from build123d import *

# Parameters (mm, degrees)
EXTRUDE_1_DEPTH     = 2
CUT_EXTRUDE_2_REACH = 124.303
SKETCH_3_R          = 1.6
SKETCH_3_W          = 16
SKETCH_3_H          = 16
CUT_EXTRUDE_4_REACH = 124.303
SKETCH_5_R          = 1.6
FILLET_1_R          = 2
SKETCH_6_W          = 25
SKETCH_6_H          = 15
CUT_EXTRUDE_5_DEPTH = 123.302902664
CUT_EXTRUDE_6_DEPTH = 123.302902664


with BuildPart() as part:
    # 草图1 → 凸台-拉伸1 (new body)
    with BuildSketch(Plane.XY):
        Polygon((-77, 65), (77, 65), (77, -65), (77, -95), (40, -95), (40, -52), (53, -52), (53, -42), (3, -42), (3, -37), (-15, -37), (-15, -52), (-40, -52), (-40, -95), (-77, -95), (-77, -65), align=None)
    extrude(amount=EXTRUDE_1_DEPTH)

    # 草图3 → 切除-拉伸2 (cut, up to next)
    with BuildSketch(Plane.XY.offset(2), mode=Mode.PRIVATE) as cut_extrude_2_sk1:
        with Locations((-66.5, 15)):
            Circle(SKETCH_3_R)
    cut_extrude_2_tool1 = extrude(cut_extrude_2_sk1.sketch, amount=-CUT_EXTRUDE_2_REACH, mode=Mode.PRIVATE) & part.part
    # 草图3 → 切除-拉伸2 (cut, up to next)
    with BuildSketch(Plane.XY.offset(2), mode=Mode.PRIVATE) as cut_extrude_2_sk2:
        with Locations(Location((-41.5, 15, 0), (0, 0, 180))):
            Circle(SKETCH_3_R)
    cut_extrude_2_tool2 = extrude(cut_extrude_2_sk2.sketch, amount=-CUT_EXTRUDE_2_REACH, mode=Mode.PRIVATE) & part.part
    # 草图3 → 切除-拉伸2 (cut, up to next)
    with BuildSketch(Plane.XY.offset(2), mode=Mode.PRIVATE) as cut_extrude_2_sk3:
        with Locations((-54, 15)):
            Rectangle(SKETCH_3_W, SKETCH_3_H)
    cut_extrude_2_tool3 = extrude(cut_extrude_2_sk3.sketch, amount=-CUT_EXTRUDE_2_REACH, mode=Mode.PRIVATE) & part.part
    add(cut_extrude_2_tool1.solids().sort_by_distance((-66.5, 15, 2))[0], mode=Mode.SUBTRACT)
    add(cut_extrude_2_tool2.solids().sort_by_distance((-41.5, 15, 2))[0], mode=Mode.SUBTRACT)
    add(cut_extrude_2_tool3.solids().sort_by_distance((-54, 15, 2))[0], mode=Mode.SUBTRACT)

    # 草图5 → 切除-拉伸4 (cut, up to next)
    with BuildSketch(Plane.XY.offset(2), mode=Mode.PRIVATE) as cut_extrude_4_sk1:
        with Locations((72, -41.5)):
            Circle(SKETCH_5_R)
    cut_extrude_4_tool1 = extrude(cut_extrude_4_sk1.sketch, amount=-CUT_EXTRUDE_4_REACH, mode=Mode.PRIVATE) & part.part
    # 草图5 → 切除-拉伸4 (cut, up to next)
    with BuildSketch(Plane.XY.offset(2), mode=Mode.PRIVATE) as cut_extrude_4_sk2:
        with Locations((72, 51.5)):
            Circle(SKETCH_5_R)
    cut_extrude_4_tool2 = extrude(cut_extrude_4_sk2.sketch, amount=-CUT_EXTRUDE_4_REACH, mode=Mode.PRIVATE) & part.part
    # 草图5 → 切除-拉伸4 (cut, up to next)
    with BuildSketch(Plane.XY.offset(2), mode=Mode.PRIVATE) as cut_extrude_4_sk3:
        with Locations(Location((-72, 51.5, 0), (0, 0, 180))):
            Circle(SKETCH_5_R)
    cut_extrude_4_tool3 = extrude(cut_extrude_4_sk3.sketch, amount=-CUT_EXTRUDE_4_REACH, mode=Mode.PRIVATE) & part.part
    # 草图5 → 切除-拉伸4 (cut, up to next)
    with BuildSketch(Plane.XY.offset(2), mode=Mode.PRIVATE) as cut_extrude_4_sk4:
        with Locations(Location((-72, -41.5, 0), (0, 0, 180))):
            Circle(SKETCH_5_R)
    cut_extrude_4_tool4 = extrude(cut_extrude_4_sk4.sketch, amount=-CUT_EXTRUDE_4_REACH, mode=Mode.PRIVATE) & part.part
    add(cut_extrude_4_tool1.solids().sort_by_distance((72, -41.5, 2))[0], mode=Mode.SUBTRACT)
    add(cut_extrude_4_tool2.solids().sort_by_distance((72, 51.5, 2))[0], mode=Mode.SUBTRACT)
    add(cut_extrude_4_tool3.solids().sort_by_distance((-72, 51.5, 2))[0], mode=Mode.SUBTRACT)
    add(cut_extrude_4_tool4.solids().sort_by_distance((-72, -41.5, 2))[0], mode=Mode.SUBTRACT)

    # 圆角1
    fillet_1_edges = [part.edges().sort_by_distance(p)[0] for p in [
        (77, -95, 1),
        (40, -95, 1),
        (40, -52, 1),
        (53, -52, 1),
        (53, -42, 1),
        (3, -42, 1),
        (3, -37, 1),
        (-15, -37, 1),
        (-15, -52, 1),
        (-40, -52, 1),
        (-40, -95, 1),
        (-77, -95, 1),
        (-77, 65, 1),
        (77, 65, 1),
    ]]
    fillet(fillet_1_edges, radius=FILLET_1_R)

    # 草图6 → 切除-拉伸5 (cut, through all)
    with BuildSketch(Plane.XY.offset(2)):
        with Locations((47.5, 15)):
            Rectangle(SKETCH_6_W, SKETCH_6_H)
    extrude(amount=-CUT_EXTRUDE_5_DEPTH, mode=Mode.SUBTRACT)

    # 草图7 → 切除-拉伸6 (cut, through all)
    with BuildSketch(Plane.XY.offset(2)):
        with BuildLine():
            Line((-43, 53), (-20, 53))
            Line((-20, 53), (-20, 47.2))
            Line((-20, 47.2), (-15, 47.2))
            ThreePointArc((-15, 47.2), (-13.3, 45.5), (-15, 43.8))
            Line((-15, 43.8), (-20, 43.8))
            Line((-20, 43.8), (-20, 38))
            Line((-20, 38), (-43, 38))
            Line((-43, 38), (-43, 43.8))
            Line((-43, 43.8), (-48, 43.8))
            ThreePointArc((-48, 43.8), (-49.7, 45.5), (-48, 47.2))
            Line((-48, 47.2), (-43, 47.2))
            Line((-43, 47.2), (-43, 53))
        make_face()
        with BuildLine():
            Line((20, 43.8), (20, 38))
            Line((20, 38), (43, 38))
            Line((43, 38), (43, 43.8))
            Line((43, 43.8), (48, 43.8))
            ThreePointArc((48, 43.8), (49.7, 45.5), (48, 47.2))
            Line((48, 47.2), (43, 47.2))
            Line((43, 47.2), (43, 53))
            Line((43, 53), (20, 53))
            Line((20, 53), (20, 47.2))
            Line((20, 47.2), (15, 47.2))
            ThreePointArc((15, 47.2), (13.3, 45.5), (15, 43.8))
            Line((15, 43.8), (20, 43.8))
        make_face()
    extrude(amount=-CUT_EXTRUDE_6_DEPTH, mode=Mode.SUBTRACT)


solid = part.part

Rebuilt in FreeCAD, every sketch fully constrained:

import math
import FreeCAD as App
import Part
import Sketcher


def edges_at(feature, points):
    """Names of the edges that pass closest to the given points."""
    edges = feature.Shape.Edges
    near = lambda p: min(range(len(edges)), key=lambda i: edges[i].distToShape(Part.Vertex(*p))[0])
    return sorted({f"Edge{near(p) + 1}" for p in points})


def add_polygon(sketch, points):
    """Adds a closed chain of lines whose ends are joined by coincident constraints."""
    first, n = sketch.GeometryCount, len(points)
    for a, b in zip(points, points[1:] + points[:1]):
        sketch.addGeometry(Part.LineSegment(App.Vector(*a, 0), App.Vector(*b, 0)), False)
    for i in range(n):
        sketch.addConstraint(Sketcher.Constraint("Coincident", first + i, 2, first + (i + 1) % n, 1))

doc = App.newDocument("Part")
body = doc.addObject("PartDesign::Body", "Body")

sketch1 = body.newObject("Sketcher::SketchObject", "Sketch")
sketch1.AttachmentSupport = (doc.getObject("XY_Plane"), [""])
sketch1.MapMode = "FlatFace"
add_polygon(sketch1, [(77, 65), (-77, 65), (-77, -95), (-40, -95), (-40, -52), (-15, -52), (-15, -37), (3, -37), (3, -42), (53, -42), (53, -52), (40, -52), (40, -95), (77, -95)])
sketch1.addConstraint(Sketcher.Constraint("Horizontal", 0))
sketch1.addConstraint(Sketcher.Constraint("Vertical", 1))
sketch1.addConstraint(Sketcher.Constraint("Horizontal", 2))
sketch1.addConstraint(Sketcher.Constraint("Vertical", 3))
sketch1.addConstraint(Sketcher.Constraint("Horizontal", 4))
sketch1.addConstraint(Sketcher.Constraint("Vertical", 5))
sketch1.addConstraint(Sketcher.Constraint("Horizontal", 6))
sketch1.addConstraint(Sketcher.Constraint("Vertical", 7))
sketch1.addConstraint(Sketcher.Constraint("Horizontal", 8))
sketch1.addConstraint(Sketcher.Constraint("Vertical", 9))
sketch1.addConstraint(Sketcher.Constraint("Horizontal", 10))
sketch1.addConstraint(Sketcher.Constraint("Vertical", 11))
sketch1.addConstraint(Sketcher.Constraint("Horizontal", 12))
sketch1.addConstraint(Sketcher.Constraint("Vertical", 13))
sketch1.addConstraint(Sketcher.Constraint("Symmetric", 3, 2, 10, 2, -2))
sketch1.addConstraint(Sketcher.Constraint("Symmetric", 1, 2, 12, 2, -2))
sketch1.addConstraint(Sketcher.Constraint("DistanceX", 0, 2, 0, 1, 154.0))
sketch1.addConstraint(Sketcher.Constraint("DistanceX", 2, 1, 2, 2, 37.0))
sketch1.addConstraint(Sketcher.Constraint("DistanceX", 4, 1, 4, 2, 25.0))
sketch1.addConstraint(Sketcher.Constraint("DistanceX", 6, 1, 6, 2, 18.0))
sketch1.addConstraint(Sketcher.Constraint("DistanceX", 8, 1, 8, 2, 50.0))
sketch1.addConstraint(Sketcher.Constraint("DistanceY", 1, 2, 1, 1, 160.0))
sketch1.addConstraint(Sketcher.Constraint("DistanceY", 3, 1, 3, 2, 43.0))
sketch1.addConstraint(Sketcher.Constraint("DistanceY", 5, 1, 5, 2, 15.0))
sketch1.addConstraint(Sketcher.Constraint("DistanceY", 7, 2, 7, 1, 5.0))
sketch1.addConstraint(Sketcher.Constraint("DistanceY", -1, 1, 0, 2, 65.0))
pad1 = body.newObject("PartDesign::Pad", "Pad")
pad1.Profile = sketch1
pad1.Length = 2

sketch2 = body.newObject("Sketcher::SketchObject", "Sketch001")
sketch2.AttachmentSupport = (doc.getObject("XY_Plane"), [""])
sketch2.MapMode = "FlatFace"
sketch2.AttachmentOffset = App.Placement(App.Vector(0, 0, 2), App.Rotation())
sketch2.addGeometry(Part.Circle(App.Vector(-66.5, 15, 0), App.Vector(0, 0, 1), 1.6), False)
sketch2.addConstraint(Sketcher.Constraint("Diameter", 0, 3.2))
sketch2.addConstraint(Sketcher.Constraint("DistanceY", -1, 1, 0, 3, 15.0))
sketch2.addConstraint(Sketcher.Constraint("DistanceX", 0, 3, -1, 1, 66.5))
pocket1 = body.newObject("PartDesign::Pocket", "Pocket")
pocket1.Profile = sketch2
pocket1.Type = "UpToFirst"

sketch3 = body.newObject("Sketcher::SketchObject", "Sketch002")
sketch3.AttachmentSupport = (doc.getObject("XY_Plane"), [""])
sketch3.MapMode = "FlatFace"
sketch3.AttachmentOffset = App.Placement(App.Vector(0, 0, 2), App.Rotation())
sketch3.addGeometry(Part.Circle(App.Vector(-41.5, 15, 0), App.Vector(0, 0, 1), 1.6), False)
sketch3.addConstraint(Sketcher.Constraint("Diameter", 0, 3.2))
sketch3.addConstraint(Sketcher.Constraint("DistanceY", -1, 1, 0, 3, 15.0))
sketch3.addConstraint(Sketcher.Constraint("DistanceX", 0, 3, -1, 1, 41.5))
pocket2 = body.newObject("PartDesign::Pocket", "Pocket001")
pocket2.Profile = sketch3
pocket2.Type = "UpToFirst"

sketch4 = body.newObject("Sketcher::SketchObject", "Sketch003")
sketch4.AttachmentSupport = (doc.getObject("XY_Plane"), [""])
sketch4.MapMode = "FlatFace"
sketch4.AttachmentOffset = App.Placement(App.Vector(0, 0, 2), App.Rotation())
add_polygon(sketch4, [(-62, 23), (-62, 7), (-46, 7), (-46, 23)])
sketch4.addConstraint(Sketcher.Constraint("Vertical", 0))
sketch4.addConstraint(Sketcher.Constraint("Horizontal", 1))
sketch4.addConstraint(Sketcher.Constraint("Vertical", 2))
sketch4.addConstraint(Sketcher.Constraint("Horizontal", 3))
sketch4.addConstraint(Sketcher.Constraint("Equal", 3, 0))
sketch4.addConstraint(Sketcher.Constraint("DistanceX", 1, 1, 1, 2, 16.0))
sketch4.addConstraint(Sketcher.Constraint("DistanceX", 0, 2, -1, 1, 62.0))
sketch4.addConstraint(Sketcher.Constraint("DistanceY", -1, 1, 0, 2, 7.0))
pocket3 = body.newObject("PartDesign::Pocket", "Pocket002")
pocket3.Profile = sketch4
pocket3.Type = "UpToFirst"

sketch5 = body.newObject("Sketcher::SketchObject", "Sketch004")
sketch5.AttachmentSupport = (doc.getObject("XY_Plane"), [""])
sketch5.MapMode = "FlatFace"
sketch5.AttachmentOffset = App.Placement(App.Vector(0, 0, 2), App.Rotation())
sketch5.addGeometry(Part.Circle(App.Vector(72, -41.5, 0), App.Vector(0, 0, 1), 1.6), False)
sketch5.addConstraint(Sketcher.Constraint("Diameter", 0, 3.2))
sketch5.addConstraint(Sketcher.Constraint("DistanceX", -1, 1, 0, 3, 72.0))
sketch5.addConstraint(Sketcher.Constraint("DistanceY", 0, 3, -1, 1, 41.5))
pocket4 = body.newObject("PartDesign::Pocket", "Pocket003")
pocket4.Profile = sketch5
pocket4.Type = "UpToFirst"

sketch6 = body.newObject("Sketcher::SketchObject", "Sketch005")
sketch6.AttachmentSupport = (doc.getObject("XY_Plane"), [""])
sketch6.MapMode = "FlatFace"
sketch6.AttachmentOffset = App.Placement(App.Vector(0, 0, 2), App.Rotation())
sketch6.addGeometry(Part.Circle(App.Vector(72, 51.5, 0), App.Vector(0, 0, 1), 1.6), False)
sketch6.addConstraint(Sketcher.Constraint("Diameter", 0, 3.2))
sketch6.addConstraint(Sketcher.Constraint("DistanceX", -1, 1, 0, 3, 72.0))
sketch6.addConstraint(Sketcher.Constraint("DistanceY", -1, 1, 0, 3, 51.5))
pocket5 = body.newObject("PartDesign::Pocket", "Pocket004")
pocket5.Profile = sketch6
pocket5.Type = "UpToFirst"

sketch7 = body.newObject("Sketcher::SketchObject", "Sketch006")
sketch7.AttachmentSupport = (doc.getObject("XY_Plane"), [""])
sketch7.MapMode = "FlatFace"
sketch7.AttachmentOffset = App.Placement(App.Vector(0, 0, 2), App.Rotation())
sketch7.addGeometry(Part.Circle(App.Vector(-72, 51.5, 0), App.Vector(0, 0, 1), 1.6), False)
sketch7.addConstraint(Sketcher.Constraint("Diameter", 0, 3.2))
sketch7.addConstraint(Sketcher.Constraint("DistanceX", 0, 3, -1, 1, 72.0))
sketch7.addConstraint(Sketcher.Constraint("DistanceY", -1, 1, 0, 3, 51.5))
pocket6 = body.newObject("PartDesign::Pocket", "Pocket005")
pocket6.Profile = sketch7
pocket6.Type = "UpToFirst"

sketch8 = body.newObject("Sketcher::SketchObject", "Sketch007")
sketch8.AttachmentSupport = (doc.getObject("XY_Plane"), [""])
sketch8.MapMode = "FlatFace"
sketch8.AttachmentOffset = App.Placement(App.Vector(0, 0, 2), App.Rotation())
sketch8.addGeometry(Part.Circle(App.Vector(-72, -41.5, 0), App.Vector(0, 0, 1), 1.6), False)
sketch8.addConstraint(Sketcher.Constraint("Diameter", 0, 3.2))
sketch8.addConstraint(Sketcher.Constraint("DistanceX", 0, 3, -1, 1, 72.0))
sketch8.addConstraint(Sketcher.Constraint("DistanceY", 0, 3, -1, 1, 41.5))
pocket7 = body.newObject("PartDesign::Pocket", "Pocket006")
pocket7.Profile = sketch8
pocket7.Type = "UpToFirst"
doc.recompute()

fillet = body.newObject("PartDesign::Fillet", "Fillet")
fillet.Base = (pocket7, edges_at(pocket7, [
    (77, -95, 1),
    (40, -95, 1),
    (40, -52, 1),
    (53, -52, 1),
    (53, -42, 1),
    (3, -42, 1),
    (3, -37, 1),
    (-15, -37, 1),
    (-15, -52, 1),
    (-40, -52, 1),
    (-40, -95, 1),
    (-77, -95, 1),
    (-77, 65, 1),
    (77, 65, 1),
]))
fillet.Radius = 2

sketch9 = body.newObject("Sketcher::SketchObject", "Sketch008")
sketch9.AttachmentSupport = (doc.getObject("XY_Plane"), [""])
sketch9.MapMode = "FlatFace"
sketch9.AttachmentOffset = App.Placement(App.Vector(0, 0, 2), App.Rotation())
add_polygon(sketch9, [(35, 22), (35, 8), (60, 8), (60, 22)])
sketch9.addConstraint(Sketcher.Constraint("Vertical", 0))
sketch9.addConstraint(Sketcher.Constraint("Horizontal", 1))
sketch9.addConstraint(Sketcher.Constraint("Vertical", 2))
sketch9.addConstraint(Sketcher.Constraint("Horizontal", 3))
sketch9.addConstraint(Sketcher.Constraint("DistanceX", 1, 1, 1, 2, 25.0))
sketch9.addConstraint(Sketcher.Constraint("DistanceY", 0, 2, 0, 1, 15.0))
sketch9.addConstraint(Sketcher.Constraint("DistanceX", -1, 1, 0, 2, 35.0))
sketch9.addConstraint(Sketcher.Constraint("DistanceY", -1, 1, 0, 2, 7.5))
pocket8 = body.newObject("PartDesign::Pocket", "Pocket007")
pocket8.Profile = sketch9
pocket8.Type = "ThroughAll"

sketch10 = body.newObject("Sketcher::SketchObject", "Sketch009")
sketch10.AttachmentSupport = (doc.getObject("XY_Plane"), [""])
sketch10.MapMode = "FlatFace"
sketch10.AttachmentOffset = App.Placement(App.Vector(0, 0, 2), App.Rotation())
sketch10.addGeometry(Part.LineSegment(App.Vector(-20, 53, 0), App.Vector(-43, 53, 0)), False)
sketch10.addGeometry(Part.LineSegment(App.Vector(-43, 53, 0), App.Vector(-43, 47.2, 0)), False)
sketch10.addGeometry(Part.LineSegment(App.Vector(-43, 47.2, 0), App.Vector(-48, 47.2, 0)), False)
sketch10.addGeometry(Part.ArcOfCircle(Part.Circle(App.Vector(-48, 45.5, 0), App.Vector(0, 0, 1), 1.7), math.radians(90), math.radians(270)), False)
sketch10.addGeometry(Part.LineSegment(App.Vector(-48, 43.8, 0), App.Vector(-43, 43.8, 0)), False)
sketch10.addGeometry(Part.LineSegment(App.Vector(-43, 43.8, 0), App.Vector(-43, 38, 0)), False)
sketch10.addGeometry(Part.LineSegment(App.Vector(-43, 38, 0), App.Vector(-20, 38, 0)), False)
sketch10.addGeometry(Part.LineSegment(App.Vector(-20, 38, 0), App.Vector(-20, 43.8, 0)), False)
sketch10.addGeometry(Part.LineSegment(App.Vector(-20, 43.8, 0), App.Vector(-15, 43.8, 0)), False)
sketch10.addGeometry(Part.ArcOfCircle(Part.Circle(App.Vector(-15, 45.5, 0), App.Vector(0, 0, 1), 1.7), math.radians(-90), math.radians(90)), False)
sketch10.addGeometry(Part.LineSegment(App.Vector(-15, 47.2, 0), App.Vector(-20, 47.2, 0)), False)
sketch10.addGeometry(Part.LineSegment(App.Vector(-20, 47.2, 0), App.Vector(-20, 53, 0)), False)
sketch10.addGeometry(Part.LineSegment(App.Vector(20, 43.8, 0), App.Vector(20, 38, 0)), False)
sketch10.addGeometry(Part.LineSegment(App.Vector(20, 38, 0), App.Vector(43, 38, 0)), False)
sketch10.addGeometry(Part.LineSegment(App.Vector(43, 38, 0), App.Vector(43, 43.8, 0)), False)
sketch10.addGeometry(Part.LineSegment(App.Vector(43, 43.8, 0), App.Vector(48, 43.8, 0)), False)
sketch10.addGeometry(Part.ArcOfCircle(Part.Circle(App.Vector(48, 45.5, 0), App.Vector(0, 0, 1), 1.7), math.radians(-90), math.radians(90)), False)
sketch10.addGeometry(Part.LineSegment(App.Vector(48, 47.2, 0), App.Vector(43, 47.2, 0)), False)
sketch10.addGeometry(Part.LineSegment(App.Vector(43, 47.2, 0), App.Vector(43, 53, 0)), False)
sketch10.addGeometry(Part.LineSegment(App.Vector(43, 53, 0), App.Vector(20, 53, 0)), False)
sketch10.addGeometry(Part.LineSegment(App.Vector(20, 53, 0), App.Vector(20, 47.2, 0)), False)
sketch10.addGeometry(Part.LineSegment(App.Vector(20, 47.2, 0), App.Vector(15, 47.2, 0)), False)
sketch10.addGeometry(Part.ArcOfCircle(Part.Circle(App.Vector(15, 45.5, 0), App.Vector(0, 0, 1), 1.7), math.radians(90), math.radians(270)), False)
sketch10.addGeometry(Part.LineSegment(App.Vector(15, 43.8, 0), App.Vector(20, 43.8, 0)), False)
sketch10.addConstraint(Sketcher.Constraint("Coincident", 0, 2, 1, 1))
sketch10.addConstraint(Sketcher.Constraint("Coincident", 1, 2, 2, 1))
sketch10.addConstraint(Sketcher.Constraint("Tangent", 2, 2, 3, 1))
sketch10.addConstraint(Sketcher.Constraint("Tangent", 3, 2, 4, 1))
sketch10.addConstraint(Sketcher.Constraint("Coincident", 4, 2, 5, 1))
sketch10.addConstraint(Sketcher.Constraint("Coincident", 5, 2, 6, 1))
sketch10.addConstraint(Sketcher.Constraint("Coincident", 6, 2, 7, 1))
sketch10.addConstraint(Sketcher.Constraint("Coincident", 7, 2, 8, 1))
sketch10.addConstraint(Sketcher.Constraint("Tangent", 8, 2, 9, 1))
sketch10.addConstraint(Sketcher.Constraint("Tangent", 9, 2, 10, 1))
sketch10.addConstraint(Sketcher.Constraint("Coincident", 10, 2, 11, 1))
sketch10.addConstraint(Sketcher.Constraint("Coincident", 11, 2, 0, 1))
sketch10.addConstraint(Sketcher.Constraint("Coincident", 12, 2, 13, 1))
sketch10.addConstraint(Sketcher.Constraint("Coincident", 13, 2, 14, 1))
sketch10.addConstraint(Sketcher.Constraint("Coincident", 14, 2, 15, 1))
sketch10.addConstraint(Sketcher.Constraint("Tangent", 15, 2, 16, 1))
sketch10.addConstraint(Sketcher.Constraint("Tangent", 16, 2, 17, 1))
sketch10.addConstraint(Sketcher.Constraint("Coincident", 17, 2, 18, 1))
sketch10.addConstraint(Sketcher.Constraint("Coincident", 18, 2, 19, 1))
sketch10.addConstraint(Sketcher.Constraint("Coincident", 19, 2, 20, 1))
sketch10.addConstraint(Sketcher.Constraint("Coincident", 20, 2, 21, 1))
sketch10.addConstraint(Sketcher.Constraint("Tangent", 21, 2, 22, 1))
sketch10.addConstraint(Sketcher.Constraint("Tangent", 22, 2, 23, 1))
sketch10.addConstraint(Sketcher.Constraint("Coincident", 23, 2, 12, 1))
sketch10.addConstraint(Sketcher.Constraint("Horizontal", 0))
sketch10.addConstraint(Sketcher.Constraint("Vertical", 1))
sketch10.addConstraint(Sketcher.Constraint("Horizontal", 2))
sketch10.addConstraint(Sketcher.Constraint("Horizontal", 4))
sketch10.addConstraint(Sketcher.Constraint("Vertical", 5))
sketch10.addConstraint(Sketcher.Constraint("Horizontal", 6))
sketch10.addConstraint(Sketcher.Constraint("Vertical", 7))
sketch10.addConstraint(Sketcher.Constraint("Horizontal", 8))
sketch10.addConstraint(Sketcher.Constraint("Horizontal", 10))
sketch10.addConstraint(Sketcher.Constraint("Vertical", 11))
sketch10.addConstraint(Sketcher.Constraint("Vertical", 12))
sketch10.addConstraint(Sketcher.Constraint("Horizontal", 13))
sketch10.addConstraint(Sketcher.Constraint("Vertical", 14))
sketch10.addConstraint(Sketcher.Constraint("Horizontal", 15))
sketch10.addConstraint(Sketcher.Constraint("Horizontal", 17))
sketch10.addConstraint(Sketcher.Constraint("Vertical", 18))
sketch10.addConstraint(Sketcher.Constraint("Horizontal", 19))
sketch10.addConstraint(Sketcher.Constraint("Vertical", 20))
sketch10.addConstraint(Sketcher.Constraint("Horizontal", 21))
sketch10.addConstraint(Sketcher.Constraint("Horizontal", 23))
sketch10.addConstraint(Sketcher.Constraint("Equal", 3, 9))
sketch10.addConstraint(Sketcher.Constraint("Equal", 9, 16))
sketch10.addConstraint(Sketcher.Constraint("Equal", 16, 22))
sketch10.addConstraint(Sketcher.Constraint("Symmetric", 3, 3, 16, 3, -2))
sketch10.addConstraint(Sketcher.Constraint("Symmetric", 9, 3, 22, 3, -2))
sketch10.addConstraint(Sketcher.Constraint("Symmetric", 6, 2, 12, 2, -2))
sketch10.addConstraint(Sketcher.Constraint("Symmetric", 0, 2, 18, 2, -2))
sketch10.addConstraint(Sketcher.Constraint("Horizontal", 3, 3, 9, 3))
sketch10.addConstraint(Sketcher.Constraint("Vertical", 1, 2, 4, 2))
sketch10.addConstraint(Sketcher.Constraint("Vertical", 7, 2, 10, 2))
sketch10.addConstraint(Sketcher.Constraint("Vertical", 14, 2, 17, 2))
sketch10.addConstraint(Sketcher.Constraint("Vertical", 12, 2, 19, 2))
sketch10.addConstraint(Sketcher.Constraint("Equal", 4, 8))
sketch10.addConstraint(Sketcher.Constraint("Equal", 1, 5))
sketch10.addConstraint(Sketcher.Constraint("Radius", 3, 1.7))
sketch10.addConstraint(Sketcher.Constraint("DistanceX", 0, 2, 0, 1, 23.0))
sketch10.addConstraint(Sketcher.Constraint("DistanceX", 2, 2, 2, 1, 5.0))
sketch10.addConstraint(Sketcher.Constraint("DistanceY", 1, 2, 1, 1, 5.8))
sketch10.addConstraint(Sketcher.Constraint("DistanceX", 3, 3, -1, 1, 48.0))
sketch10.addConstraint(Sketcher.Constraint("DistanceY", -1, 1, 0, 2, 53.0))
pocket9 = body.newObject("PartDesign::Pocket", "Pocket008")
pocket9.Profile = sketch10
pocket9.Type = "ThroughAll"

doc.recompute()
